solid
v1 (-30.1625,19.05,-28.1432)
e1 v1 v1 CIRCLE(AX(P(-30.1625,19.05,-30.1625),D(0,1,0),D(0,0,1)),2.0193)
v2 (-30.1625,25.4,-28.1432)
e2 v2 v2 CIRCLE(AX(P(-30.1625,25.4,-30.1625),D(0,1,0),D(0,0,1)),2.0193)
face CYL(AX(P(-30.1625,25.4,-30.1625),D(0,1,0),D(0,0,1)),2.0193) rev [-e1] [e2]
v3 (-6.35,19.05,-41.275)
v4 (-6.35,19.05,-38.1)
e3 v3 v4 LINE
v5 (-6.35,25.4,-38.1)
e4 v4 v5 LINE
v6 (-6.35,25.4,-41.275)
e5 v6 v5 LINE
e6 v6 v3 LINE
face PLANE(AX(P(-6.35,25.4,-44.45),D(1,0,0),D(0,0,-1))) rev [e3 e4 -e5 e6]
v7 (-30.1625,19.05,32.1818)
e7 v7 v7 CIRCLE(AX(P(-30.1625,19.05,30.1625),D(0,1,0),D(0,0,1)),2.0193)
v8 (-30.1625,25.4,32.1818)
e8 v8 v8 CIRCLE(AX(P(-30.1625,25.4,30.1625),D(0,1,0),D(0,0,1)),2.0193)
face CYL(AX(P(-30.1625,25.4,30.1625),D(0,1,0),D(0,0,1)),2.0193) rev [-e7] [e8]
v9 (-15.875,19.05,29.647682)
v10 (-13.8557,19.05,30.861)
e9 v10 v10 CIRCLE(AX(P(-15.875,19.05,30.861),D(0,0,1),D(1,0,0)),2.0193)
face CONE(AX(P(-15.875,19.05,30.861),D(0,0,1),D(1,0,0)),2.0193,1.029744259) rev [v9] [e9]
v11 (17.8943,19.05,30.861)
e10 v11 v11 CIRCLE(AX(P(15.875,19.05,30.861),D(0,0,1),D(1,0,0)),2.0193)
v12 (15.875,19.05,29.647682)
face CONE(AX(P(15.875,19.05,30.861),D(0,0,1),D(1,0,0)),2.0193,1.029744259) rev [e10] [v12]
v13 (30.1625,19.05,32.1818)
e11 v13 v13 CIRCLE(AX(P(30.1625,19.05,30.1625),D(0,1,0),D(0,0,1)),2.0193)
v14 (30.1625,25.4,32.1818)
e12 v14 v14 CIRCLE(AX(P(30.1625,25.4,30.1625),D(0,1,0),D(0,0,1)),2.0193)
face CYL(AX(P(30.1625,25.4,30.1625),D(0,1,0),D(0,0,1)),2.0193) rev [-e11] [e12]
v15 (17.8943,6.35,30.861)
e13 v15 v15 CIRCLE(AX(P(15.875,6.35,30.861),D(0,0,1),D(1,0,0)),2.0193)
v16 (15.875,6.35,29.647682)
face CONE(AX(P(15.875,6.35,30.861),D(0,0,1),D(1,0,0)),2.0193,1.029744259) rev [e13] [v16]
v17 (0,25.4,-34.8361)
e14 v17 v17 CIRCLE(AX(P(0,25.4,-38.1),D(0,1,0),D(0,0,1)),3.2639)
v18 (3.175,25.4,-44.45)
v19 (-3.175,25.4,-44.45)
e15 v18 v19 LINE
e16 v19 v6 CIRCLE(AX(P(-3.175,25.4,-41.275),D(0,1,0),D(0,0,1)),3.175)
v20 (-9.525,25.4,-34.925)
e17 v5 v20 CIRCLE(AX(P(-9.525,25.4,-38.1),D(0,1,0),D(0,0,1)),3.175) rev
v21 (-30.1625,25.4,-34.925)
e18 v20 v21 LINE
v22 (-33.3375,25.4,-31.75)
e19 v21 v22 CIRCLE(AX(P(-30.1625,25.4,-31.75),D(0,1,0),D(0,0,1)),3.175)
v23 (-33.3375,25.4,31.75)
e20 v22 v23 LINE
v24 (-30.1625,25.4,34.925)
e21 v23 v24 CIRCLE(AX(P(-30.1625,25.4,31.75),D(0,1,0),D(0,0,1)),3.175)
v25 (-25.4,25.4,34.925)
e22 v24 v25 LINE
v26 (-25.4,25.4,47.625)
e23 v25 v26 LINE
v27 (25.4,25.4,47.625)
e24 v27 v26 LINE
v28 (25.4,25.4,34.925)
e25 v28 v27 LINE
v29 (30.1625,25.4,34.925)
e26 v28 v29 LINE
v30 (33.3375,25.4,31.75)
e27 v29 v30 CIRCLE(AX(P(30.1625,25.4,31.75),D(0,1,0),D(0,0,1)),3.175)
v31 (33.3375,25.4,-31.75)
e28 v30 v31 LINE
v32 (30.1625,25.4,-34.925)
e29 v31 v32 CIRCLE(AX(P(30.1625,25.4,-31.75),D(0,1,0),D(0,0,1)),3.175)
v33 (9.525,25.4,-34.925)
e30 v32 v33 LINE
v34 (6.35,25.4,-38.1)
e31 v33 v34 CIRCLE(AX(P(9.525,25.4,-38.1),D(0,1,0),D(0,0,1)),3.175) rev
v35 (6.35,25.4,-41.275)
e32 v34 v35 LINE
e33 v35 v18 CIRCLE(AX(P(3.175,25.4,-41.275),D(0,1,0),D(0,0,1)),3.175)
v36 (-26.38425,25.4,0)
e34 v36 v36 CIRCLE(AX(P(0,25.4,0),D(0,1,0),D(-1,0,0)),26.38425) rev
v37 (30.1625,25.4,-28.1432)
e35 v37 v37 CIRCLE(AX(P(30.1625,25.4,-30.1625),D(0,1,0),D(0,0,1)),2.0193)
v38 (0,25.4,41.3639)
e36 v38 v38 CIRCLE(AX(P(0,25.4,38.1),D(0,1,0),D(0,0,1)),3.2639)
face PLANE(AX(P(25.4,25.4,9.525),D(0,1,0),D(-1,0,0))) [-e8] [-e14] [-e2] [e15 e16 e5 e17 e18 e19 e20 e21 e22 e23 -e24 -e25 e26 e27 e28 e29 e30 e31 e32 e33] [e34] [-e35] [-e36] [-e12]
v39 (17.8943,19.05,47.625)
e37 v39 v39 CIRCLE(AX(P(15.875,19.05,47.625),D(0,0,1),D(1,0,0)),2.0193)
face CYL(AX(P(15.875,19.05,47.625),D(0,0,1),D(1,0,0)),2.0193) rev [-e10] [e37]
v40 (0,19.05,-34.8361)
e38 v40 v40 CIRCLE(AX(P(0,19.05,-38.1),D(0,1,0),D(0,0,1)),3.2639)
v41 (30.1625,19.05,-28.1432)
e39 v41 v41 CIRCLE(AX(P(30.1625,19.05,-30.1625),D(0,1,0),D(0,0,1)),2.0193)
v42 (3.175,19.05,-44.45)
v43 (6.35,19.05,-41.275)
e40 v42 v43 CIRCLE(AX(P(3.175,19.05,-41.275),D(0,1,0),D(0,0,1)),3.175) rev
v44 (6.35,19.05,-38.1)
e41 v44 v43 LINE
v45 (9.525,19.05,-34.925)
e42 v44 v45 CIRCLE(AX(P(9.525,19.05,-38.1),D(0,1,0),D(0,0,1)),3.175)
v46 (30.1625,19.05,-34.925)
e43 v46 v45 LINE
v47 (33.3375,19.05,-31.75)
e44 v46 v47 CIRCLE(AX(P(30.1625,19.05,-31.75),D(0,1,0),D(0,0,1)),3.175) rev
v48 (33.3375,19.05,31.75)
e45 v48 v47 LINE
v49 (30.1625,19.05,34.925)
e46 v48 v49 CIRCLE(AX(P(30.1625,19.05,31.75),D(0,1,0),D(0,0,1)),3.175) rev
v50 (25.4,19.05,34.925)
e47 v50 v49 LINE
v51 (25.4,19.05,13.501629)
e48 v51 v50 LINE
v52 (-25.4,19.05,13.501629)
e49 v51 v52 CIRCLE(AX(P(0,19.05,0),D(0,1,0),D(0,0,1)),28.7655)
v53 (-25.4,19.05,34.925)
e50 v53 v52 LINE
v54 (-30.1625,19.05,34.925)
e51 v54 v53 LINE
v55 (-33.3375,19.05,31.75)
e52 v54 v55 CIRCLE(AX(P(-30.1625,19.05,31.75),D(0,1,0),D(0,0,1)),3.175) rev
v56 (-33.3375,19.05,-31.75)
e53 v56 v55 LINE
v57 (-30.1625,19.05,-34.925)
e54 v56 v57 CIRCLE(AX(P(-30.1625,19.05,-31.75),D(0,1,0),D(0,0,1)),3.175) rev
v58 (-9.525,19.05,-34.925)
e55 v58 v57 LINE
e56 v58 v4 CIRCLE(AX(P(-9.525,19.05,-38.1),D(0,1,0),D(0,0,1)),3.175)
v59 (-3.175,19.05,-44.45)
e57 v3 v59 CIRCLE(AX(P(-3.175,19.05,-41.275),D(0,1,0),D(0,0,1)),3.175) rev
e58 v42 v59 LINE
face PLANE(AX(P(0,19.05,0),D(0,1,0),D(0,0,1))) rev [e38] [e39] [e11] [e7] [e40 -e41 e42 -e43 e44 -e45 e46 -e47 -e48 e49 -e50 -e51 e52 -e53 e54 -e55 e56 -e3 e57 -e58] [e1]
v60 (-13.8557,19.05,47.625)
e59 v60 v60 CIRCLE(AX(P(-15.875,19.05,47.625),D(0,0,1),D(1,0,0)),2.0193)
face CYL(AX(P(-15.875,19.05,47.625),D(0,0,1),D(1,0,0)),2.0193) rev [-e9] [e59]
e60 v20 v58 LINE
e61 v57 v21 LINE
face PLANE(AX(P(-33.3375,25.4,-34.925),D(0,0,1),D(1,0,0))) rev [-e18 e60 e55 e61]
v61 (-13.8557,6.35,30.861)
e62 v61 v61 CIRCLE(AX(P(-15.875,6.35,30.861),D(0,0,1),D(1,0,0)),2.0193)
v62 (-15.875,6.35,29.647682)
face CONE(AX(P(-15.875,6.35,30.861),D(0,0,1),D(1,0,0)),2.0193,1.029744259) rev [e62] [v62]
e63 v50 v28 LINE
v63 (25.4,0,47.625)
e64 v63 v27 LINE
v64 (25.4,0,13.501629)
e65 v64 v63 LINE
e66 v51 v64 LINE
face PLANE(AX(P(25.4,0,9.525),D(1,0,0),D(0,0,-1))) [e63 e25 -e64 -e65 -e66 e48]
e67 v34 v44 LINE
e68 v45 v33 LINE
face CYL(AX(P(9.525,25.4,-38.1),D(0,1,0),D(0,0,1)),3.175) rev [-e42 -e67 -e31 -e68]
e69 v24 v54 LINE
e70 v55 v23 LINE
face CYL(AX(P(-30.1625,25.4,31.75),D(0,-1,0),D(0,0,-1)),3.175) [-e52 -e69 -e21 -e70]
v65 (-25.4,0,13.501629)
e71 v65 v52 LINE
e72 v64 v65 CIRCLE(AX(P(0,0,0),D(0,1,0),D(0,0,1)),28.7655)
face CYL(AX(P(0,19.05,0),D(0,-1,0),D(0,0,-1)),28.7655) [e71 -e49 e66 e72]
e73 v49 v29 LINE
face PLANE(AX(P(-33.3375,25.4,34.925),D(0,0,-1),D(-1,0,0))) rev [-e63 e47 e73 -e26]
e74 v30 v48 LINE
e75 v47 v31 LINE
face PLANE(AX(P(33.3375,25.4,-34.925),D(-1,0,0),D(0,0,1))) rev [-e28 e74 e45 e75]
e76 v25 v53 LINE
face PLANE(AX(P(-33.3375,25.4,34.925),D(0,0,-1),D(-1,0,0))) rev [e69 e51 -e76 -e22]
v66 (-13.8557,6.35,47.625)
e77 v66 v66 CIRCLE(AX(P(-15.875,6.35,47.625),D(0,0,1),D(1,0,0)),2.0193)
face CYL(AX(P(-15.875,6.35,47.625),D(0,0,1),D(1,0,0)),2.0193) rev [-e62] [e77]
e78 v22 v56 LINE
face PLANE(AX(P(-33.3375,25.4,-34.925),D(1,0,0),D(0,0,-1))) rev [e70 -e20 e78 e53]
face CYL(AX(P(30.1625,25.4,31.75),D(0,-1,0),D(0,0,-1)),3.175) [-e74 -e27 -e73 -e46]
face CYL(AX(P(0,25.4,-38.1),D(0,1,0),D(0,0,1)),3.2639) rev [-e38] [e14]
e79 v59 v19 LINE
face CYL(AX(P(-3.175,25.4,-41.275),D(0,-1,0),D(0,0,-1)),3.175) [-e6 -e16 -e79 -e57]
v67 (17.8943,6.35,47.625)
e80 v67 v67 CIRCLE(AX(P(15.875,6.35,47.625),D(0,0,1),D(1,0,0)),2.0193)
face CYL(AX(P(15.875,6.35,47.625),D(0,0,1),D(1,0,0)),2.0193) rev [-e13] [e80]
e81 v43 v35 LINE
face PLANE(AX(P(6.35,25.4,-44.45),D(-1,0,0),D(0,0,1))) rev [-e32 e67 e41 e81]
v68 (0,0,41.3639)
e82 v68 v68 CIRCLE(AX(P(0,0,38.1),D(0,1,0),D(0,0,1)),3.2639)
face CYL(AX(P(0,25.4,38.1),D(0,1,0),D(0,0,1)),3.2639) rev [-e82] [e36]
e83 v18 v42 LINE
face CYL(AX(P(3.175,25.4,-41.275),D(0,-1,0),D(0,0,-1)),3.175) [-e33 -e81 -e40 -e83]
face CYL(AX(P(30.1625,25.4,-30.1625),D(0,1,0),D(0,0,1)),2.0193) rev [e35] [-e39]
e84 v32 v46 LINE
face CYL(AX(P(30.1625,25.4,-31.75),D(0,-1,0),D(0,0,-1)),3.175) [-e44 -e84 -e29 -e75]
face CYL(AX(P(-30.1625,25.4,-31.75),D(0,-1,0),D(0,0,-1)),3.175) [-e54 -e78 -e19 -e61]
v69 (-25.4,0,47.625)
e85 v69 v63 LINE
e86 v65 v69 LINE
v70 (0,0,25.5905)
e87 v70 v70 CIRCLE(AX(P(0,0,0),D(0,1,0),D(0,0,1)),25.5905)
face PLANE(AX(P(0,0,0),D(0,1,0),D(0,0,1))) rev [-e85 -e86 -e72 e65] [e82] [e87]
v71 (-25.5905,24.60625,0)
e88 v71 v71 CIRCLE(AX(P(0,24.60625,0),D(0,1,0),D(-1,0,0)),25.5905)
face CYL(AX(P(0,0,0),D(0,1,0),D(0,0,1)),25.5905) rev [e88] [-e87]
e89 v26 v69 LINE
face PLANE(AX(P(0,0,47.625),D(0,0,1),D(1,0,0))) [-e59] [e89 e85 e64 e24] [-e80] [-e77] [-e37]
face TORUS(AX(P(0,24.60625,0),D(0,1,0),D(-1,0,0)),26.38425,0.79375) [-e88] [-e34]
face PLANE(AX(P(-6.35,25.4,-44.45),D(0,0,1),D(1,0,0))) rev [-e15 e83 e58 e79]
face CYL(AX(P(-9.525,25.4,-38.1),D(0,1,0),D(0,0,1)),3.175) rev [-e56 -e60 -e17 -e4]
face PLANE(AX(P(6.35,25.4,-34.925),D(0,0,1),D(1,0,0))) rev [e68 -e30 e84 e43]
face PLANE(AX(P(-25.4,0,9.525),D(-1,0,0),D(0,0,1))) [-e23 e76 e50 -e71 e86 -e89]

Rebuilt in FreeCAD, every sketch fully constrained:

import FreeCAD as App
import Part
import Sketcher
from FreeCAD import Vector
Q = App.Units.Quantity


def edges_at(feature, points):
    """Names of the edges that pass closest to the given points."""
    edges = feature.Shape.Edges
    near = lambda p: min(range(len(edges)), key=lambda i: edges[i].distToShape(Part.Vertex(*p))[0])
    return sorted({f"Edge{near(p) + 1}" for p in points})


def add_polygon(sketch, points):
    """Adds a closed chain of lines whose ends are joined by coincident constraints."""
    first, n = sketch.GeometryCount, len(points)
    for a, b in zip(points, points[1:] + points[:1]):
        sketch.addGeometry(Part.LineSegment(App.Vector(*a, 0), App.Vector(*b, 0)), False)
    for i in range(n):
        sketch.addConstraint(Sketcher.Constraint("Coincident", first + i, 2, first + (i + 1) % n, 1))

doc = App.newDocument("Part")
body = doc.addObject("PartDesign::Body", "Body")

# Sketch on XZ plane
sketch1 = body.newObject("Sketcher::SketchObject", "Sketch")
sketch1.AttachmentSupport = (doc.getObject("XZ_Plane"), [""])
sketch1.MapMode = "FlatFace"
sketch1.addGeometry(Part.Circle(Vector(0, 0, 0), Vector(0, 0, 1), 29), False)
sketch1.addConstraint([
    Sketcher.Constraint("Coincident", 0, 3, -1, 1),
    Sketcher.Constraint("Diameter", 0, Q("2.265 in")),
])
pad1 = body.newObject("PartDesign::Pad", "Pad")
pad1.Profile = sketch1
pad1.Length = Q("0.75 in")
pad1.Reversed = True
body2 = doc.addObject("PartDesign::Body", "Body001")

# Sketch on XZ plane
sketch2 = body2.newObject("Sketcher::SketchObject", "Sketch001")
sketch2.AttachmentSupport = (doc.getObject("XZ_Plane001"), [""])
sketch2.MapMode = "FlatFace"
sketch2.AttachmentOffset = App.Placement(Vector(0, 0, -0.75 * 25.4), App.Rotation())
add_polygon(sketch2, [(-6, -35), (-33, -35), (-33, 35), (33, 35), (33, -35), (6, -35), (6, -44), (-6, -44)])  # lines 0-7
sketch2.addConstraint([
    Sketcher.Constraint("Horizontal", 0),
    Sketcher.Constraint("Vertical", 1),
    Sketcher.Constraint("Horizontal", 2),
    Sketcher.Constraint("Vertical", 3),
    Sketcher.Constraint("Horizontal", 4),
    Sketcher.Constraint("Vertical", 5),
    Sketcher.Constraint("Horizontal", 6),
    Sketcher.Constraint("Vertical", 7),
    Sketcher.Constraint("Symmetric", 0, 2, 2, 2, -1, 1),
    Sketcher.Constraint("Symmetric", 4, 2, 7, 2, -2),
    Sketcher.Constraint("DistanceX", 6, 2, 6, 1, Q("0.5 in")),
    Sketcher.Constraint("DistanceY", 1, 1, 1, 2, Q("2.75 in")),
    Sketcher.Constraint("DistanceX", 0, 2, 0, 1, Q("1.0625 in")),
    Sketcher.Constraint("DistanceY", 5, 2, 5, 1, Q("0.375 in")),
])
pad2 = body2.newObject("PartDesign::Pad", "Pad001")
pad2.Profile = sketch2
pad2.Length = Q("0.25 in")
pad2.Reversed = True
doc.recompute()

fillet = body2.newObject("PartDesign::Fillet", "Fillet")
fillet.Base = (pad2, edges_at(pad2, [
    (33.337, 22.225, 34.925),
    (-33.337, 22.225, 34.925),
    (-33.337, 22.225, -34.925),
    (-6.35, 22.225, -34.925),
    (-6.35, 22.225, -44.45),
    (6.35, 22.225, -44.45),
    (6.35, 22.225, -34.925),
    (33.337, 22.225, -34.925),
]))
fillet.Radius = Q("0.125 in")
doc.recompute()

boolean = body.newObject("PartDesign::Boolean", "Boolean")
boolean.Type = "Fuse"
boolean.addObjects([body2])

# Sketch on XY plane
sketch3 = body.newObject("Sketcher::SketchObject", "Sketch002")
sketch3.AttachmentSupport = (doc.getObject("XY_Plane"), [""])
sketch3.MapMode = "FlatFace"
sketch3.AttachmentOffset = App.Placement(Vector(0, 0, 1.875 * 25.4), App.Rotation())
add_polygon(sketch3, [(-25, 25), (-25, 0), (25, 0), (25, 25)])  # lines 0-3
sketch3.addConstraint([
    Sketcher.Constraint("Vertical", 0),
    Sketcher.Constraint("Horizontal", 1),
    Sketcher.Constraint("Vertical", 2),
    Sketcher.Constraint("Horizontal", 3),
    Sketcher.Constraint("Symmetric", 0, 2, 1, 2, -1, 1),
    Sketcher.Constraint("DistanceX", 1, 1, 1, 2, Q("2 in")),
    Sketcher.Constraint("DistanceY", 0, 2, 0, 1, Q("1 in")),
])
pad3 = body.newObject("PartDesign::Pad", "Pad002")
pad3.Profile = sketch3
pad3.Length = Q("1.5 in")
pad3.Reversed = True

# Sketch on XZ plane
sketch4 = body.newObject("Sketcher::SketchObject", "Sketch003")
sketch4.AttachmentSupport = (doc.getObject("XZ_Plane"), [""])
sketch4.MapMode = "FlatFace"
sketch4.AttachmentOffset = App.Placement(Vector(0, 0, -1 * 25.4), App.Rotation())
sketch4.addGeometry(Part.Circle(Vector(0, 0, 0), Vector(0, 0, 1), 26), False)
sketch4.addConstraint([
    Sketcher.Constraint("Coincident", 0, 3, -1, 1),
    Sketcher.Constraint("Diameter", 0, Q("2.015 in")),
])
pocket1 = body.newObject("PartDesign::Pocket", "Pocket")
pocket1.Profile = sketch4
pocket1.Type = "ThroughAll"
pocket1.Reversed = True
doc.recompute()

fillet2 = body.newObject("PartDesign::Fillet", "Fillet001")
fillet2.Base = (pocket1, edges_at(pocket1, [(-25.59, 25.4, 0)]))
fillet2.Radius = Q("0.03125 in")

# Sketch on XZ plane
sketch5 = body.newObject("Sketcher::SketchObject", "Sketch004")
sketch5.AttachmentSupport = (doc.getObject("XZ_Plane"), [""])
sketch5.MapMode = "FlatFace"
sketch5.AttachmentOffset = App.Placement(Vector(0, 0, -1 * 25.4), App.Rotation())
sketch5.addGeometry([
    Part.Circle(Vector(-30.2, -30.2, 0), Vector(0, 0, 1), 2),
    Part.Circle(Vector(30.2, -30.2, 0), Vector(0, 0, 1), 2),
    Part.Circle(Vector(30.2, 30.2, 0), Vector(0, 0, 1), 2),
    Part.Circle(Vector(-30.2, 30.2, 0), Vector(0, 0, 1), 2),
], False)
sketch5.addConstraint([
    Sketcher.Constraint("Equal", 0, 1),
    Sketcher.Constraint("Equal", 1, 2),
    Sketcher.Constraint("Equal", 2, 3),
    Sketcher.Constraint("Symmetric", 0, 3, 2, 3, -1, 1),
    Sketcher.Constraint("Symmetric", 1, 3, 3, 3, -1, 1),
    Sketcher.Constraint("Symmetric", 0, 3, 1, 3, -2),
    Sketcher.Constraint("Diameter", 0, Q("0.159 in")),
    Sketcher.Constraint("DistanceX", 0, 3, -1, 1, Q("1.1875 in")),
    Sketcher.Constraint("DistanceY", 0, 3, -1, 1, Q("1.1875 in")),
])
doc.recompute()
hole = body.newObject("PartDesign::Hole", "Hole")
hole.Profile = sketch5
hole.ThreadType = "None"
hole.Diameter = Q("0.159 in")
hole.DepthType = "Dimension"
hole.Depth = Q("0.25 in")
hole.DrillPoint = "Flat"
hole.Reversed = True

# Sketch on XZ plane
sketch6 = body.newObject("Sketcher::SketchObject", "Sketch005")
sketch6.AttachmentSupport = (doc.getObject("XZ_Plane"), [""])
sketch6.MapMode = "FlatFace"
sketch6.AttachmentOffset = App.Placement(Vector(0, 0, -1 * 25.4), App.Rotation())
sketch6.addGeometry([
    Part.Circle(Vector(0, -38.1, 0), Vector(0, 0, 1), 3.3),
    Part.Circle(Vector(0, 38.1, 0), Vector(0, 0, 1), 3.3),
], False)
sketch6.addConstraint([
    Sketcher.Constraint("Equal", 0, 1),
    Sketcher.Constraint("Symmetric", 0, 3, 1, 3, -1, 1),
    Sketcher.Constraint("PointOnObject", 0, 3, -2),
    Sketcher.Constraint("Diameter", 0, Q("0.257 in")),
    Sketcher.Constraint("DistanceY", 0, 3, 1, 3, Q("3 in")),
])
doc.recompute()
hole2 = body.newObject("PartDesign::Hole", "Hole001")
hole2.Profile = sketch6
hole2.ThreadType = "None"
hole2.Diameter = Q("0.257 in")
hole2.DepthType = "ThroughAll"
hole2.Reversed = True

# Sketch on XY plane
sketch7 = body.newObject("Sketcher::SketchObject", "Sketch006")
sketch7.AttachmentSupport = (doc.getObject("XY_Plane"), [""])
sketch7.MapMode = "FlatFace"
sketch7.AttachmentOffset = App.Placement(Vector(0, 0, 1.875 * 25.4), App.Rotation())
sketch7.addGeometry([
    Part.Circle(Vector(-15.9, 19.1, 0), Vector(0, 0, 1), 2),
    Part.Circle(Vector(-15.9, 6.3, 0), Vector(0, 0, 1), 2),
    Part.Circle(Vector(15.9, 6.3, 0), Vector(0, 0, 1), 2),
    Part.Circle(Vector(15.9, 19.1, 0), Vector(0, 0, 1), 2),
], False)
sketch7.addConstraint([
    Sketcher.Constraint("Equal", 0, 1),
    Sketcher.Constraint("Equal", 1, 2),
    Sketcher.Constraint("Equal", 2, 3),
    Sketcher.Constraint("Symmetric", 1, 3, 2, 3, -2),
    Sketcher.Constraint("Symmetric", 0, 3, 3, 3, -2),
    Sketcher.Constraint("Vertical", 0, 3, 1, 3),
    Sketcher.Constraint("Diameter", 0, Q("0.159 in")),
    Sketcher.Constraint("DistanceY", 1, 3, 0, 3, Q("0.5 in")),
    Sketcher.Constraint("DistanceY", -1, 1, 0, 3, Q("0.75 in")),
    Sketcher.Constraint("DistanceX", 1, 3, 2, 3, Q("1.25 in")),
])
doc.recompute()
hole3 = body.newObject("PartDesign::Hole", "Hole002")
hole3.Profile = sketch7
hole3.ThreadType = "None"
hole3.Diameter = Q("0.159 in")
hole3.DepthType = "Dimension"
hole3.Depth = Q("0.66 in")
hole3.DrillPoint = "Angled"
hole3.DrillPointAngle = 118

doc.recompute()
